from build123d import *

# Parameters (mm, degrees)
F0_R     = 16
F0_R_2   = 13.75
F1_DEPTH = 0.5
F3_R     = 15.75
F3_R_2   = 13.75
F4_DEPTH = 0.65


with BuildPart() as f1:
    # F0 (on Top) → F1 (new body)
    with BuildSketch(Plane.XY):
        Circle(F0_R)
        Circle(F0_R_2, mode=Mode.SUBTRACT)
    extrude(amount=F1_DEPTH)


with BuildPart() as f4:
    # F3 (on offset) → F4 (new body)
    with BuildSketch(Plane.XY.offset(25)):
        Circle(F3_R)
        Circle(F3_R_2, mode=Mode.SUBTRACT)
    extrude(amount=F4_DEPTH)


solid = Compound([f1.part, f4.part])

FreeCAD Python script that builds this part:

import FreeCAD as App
import Part
import Sketcher

V = App.Vector

doc = App.newDocument("Part")
body = doc.addObject("PartDesign::Body", "Body")

sketch1 = body.newObject("Sketcher::SketchObject", "Sketch")
sketch1.AttachmentSupport = (doc.getObject("XY_Plane"), [""])
sketch1.MapMode = "FlatFace"
sketch1.addGeometry([
    Part.Circle(V(0, 0, 0), V(0, 0, 1), 16),
    Part.Circle(V(0, 0, 0), V(0, 0, 1), 14),
], False)
sketch1.addConstraint([
    Sketcher.Constraint("Coincident", 0, 3, -1, 1),
    Sketcher.Constraint("Coincident", 1, 3, -1, 1),
    Sketcher.Constraint("Diameter", 0, 32.0),
    Sketcher.Constraint("Diameter", 1, 27.5),
])
pad1 = body.newObject("PartDesign::Pad", "Pad")
pad1.Profile = sketch1
pad1.Length = 0.5
body2 = doc.addObject("PartDesign::Body", "Body001")

sketch2 = body2.newObject("Sketcher::SketchObject", "Sketch001")
sketch2.AttachmentSupport = (doc.getObject("XY_Plane001"), [""])
sketch2.MapMode = "FlatFace"
sketch2.AttachmentOffset = App.Placement(V(0, 0, 25), App.Rotation())
sketch2.addGeometry([
    Part.Circle(V(0, 0, 0), V(0, 0, 1), 16),
    Part.Circle(V(0, 0, 0), V(0, 0, 1), 14),
], False)
sketch2.addConstraint([
    Sketcher.Constraint("Coincident", 0, 3, -1, 1),
    Sketcher.Constraint("Coincident", 1, 3, -1, 1),
    Sketcher.Constraint("Diameter", 0, 31.5),
    Sketcher.Constraint("Diameter", 1, 27.5),
])
pad2 = body2.newObject("PartDesign::Pad", "Pad001")
pad2.Profile = sketch2
pad2.Length = 0.65

doc.recompute()
